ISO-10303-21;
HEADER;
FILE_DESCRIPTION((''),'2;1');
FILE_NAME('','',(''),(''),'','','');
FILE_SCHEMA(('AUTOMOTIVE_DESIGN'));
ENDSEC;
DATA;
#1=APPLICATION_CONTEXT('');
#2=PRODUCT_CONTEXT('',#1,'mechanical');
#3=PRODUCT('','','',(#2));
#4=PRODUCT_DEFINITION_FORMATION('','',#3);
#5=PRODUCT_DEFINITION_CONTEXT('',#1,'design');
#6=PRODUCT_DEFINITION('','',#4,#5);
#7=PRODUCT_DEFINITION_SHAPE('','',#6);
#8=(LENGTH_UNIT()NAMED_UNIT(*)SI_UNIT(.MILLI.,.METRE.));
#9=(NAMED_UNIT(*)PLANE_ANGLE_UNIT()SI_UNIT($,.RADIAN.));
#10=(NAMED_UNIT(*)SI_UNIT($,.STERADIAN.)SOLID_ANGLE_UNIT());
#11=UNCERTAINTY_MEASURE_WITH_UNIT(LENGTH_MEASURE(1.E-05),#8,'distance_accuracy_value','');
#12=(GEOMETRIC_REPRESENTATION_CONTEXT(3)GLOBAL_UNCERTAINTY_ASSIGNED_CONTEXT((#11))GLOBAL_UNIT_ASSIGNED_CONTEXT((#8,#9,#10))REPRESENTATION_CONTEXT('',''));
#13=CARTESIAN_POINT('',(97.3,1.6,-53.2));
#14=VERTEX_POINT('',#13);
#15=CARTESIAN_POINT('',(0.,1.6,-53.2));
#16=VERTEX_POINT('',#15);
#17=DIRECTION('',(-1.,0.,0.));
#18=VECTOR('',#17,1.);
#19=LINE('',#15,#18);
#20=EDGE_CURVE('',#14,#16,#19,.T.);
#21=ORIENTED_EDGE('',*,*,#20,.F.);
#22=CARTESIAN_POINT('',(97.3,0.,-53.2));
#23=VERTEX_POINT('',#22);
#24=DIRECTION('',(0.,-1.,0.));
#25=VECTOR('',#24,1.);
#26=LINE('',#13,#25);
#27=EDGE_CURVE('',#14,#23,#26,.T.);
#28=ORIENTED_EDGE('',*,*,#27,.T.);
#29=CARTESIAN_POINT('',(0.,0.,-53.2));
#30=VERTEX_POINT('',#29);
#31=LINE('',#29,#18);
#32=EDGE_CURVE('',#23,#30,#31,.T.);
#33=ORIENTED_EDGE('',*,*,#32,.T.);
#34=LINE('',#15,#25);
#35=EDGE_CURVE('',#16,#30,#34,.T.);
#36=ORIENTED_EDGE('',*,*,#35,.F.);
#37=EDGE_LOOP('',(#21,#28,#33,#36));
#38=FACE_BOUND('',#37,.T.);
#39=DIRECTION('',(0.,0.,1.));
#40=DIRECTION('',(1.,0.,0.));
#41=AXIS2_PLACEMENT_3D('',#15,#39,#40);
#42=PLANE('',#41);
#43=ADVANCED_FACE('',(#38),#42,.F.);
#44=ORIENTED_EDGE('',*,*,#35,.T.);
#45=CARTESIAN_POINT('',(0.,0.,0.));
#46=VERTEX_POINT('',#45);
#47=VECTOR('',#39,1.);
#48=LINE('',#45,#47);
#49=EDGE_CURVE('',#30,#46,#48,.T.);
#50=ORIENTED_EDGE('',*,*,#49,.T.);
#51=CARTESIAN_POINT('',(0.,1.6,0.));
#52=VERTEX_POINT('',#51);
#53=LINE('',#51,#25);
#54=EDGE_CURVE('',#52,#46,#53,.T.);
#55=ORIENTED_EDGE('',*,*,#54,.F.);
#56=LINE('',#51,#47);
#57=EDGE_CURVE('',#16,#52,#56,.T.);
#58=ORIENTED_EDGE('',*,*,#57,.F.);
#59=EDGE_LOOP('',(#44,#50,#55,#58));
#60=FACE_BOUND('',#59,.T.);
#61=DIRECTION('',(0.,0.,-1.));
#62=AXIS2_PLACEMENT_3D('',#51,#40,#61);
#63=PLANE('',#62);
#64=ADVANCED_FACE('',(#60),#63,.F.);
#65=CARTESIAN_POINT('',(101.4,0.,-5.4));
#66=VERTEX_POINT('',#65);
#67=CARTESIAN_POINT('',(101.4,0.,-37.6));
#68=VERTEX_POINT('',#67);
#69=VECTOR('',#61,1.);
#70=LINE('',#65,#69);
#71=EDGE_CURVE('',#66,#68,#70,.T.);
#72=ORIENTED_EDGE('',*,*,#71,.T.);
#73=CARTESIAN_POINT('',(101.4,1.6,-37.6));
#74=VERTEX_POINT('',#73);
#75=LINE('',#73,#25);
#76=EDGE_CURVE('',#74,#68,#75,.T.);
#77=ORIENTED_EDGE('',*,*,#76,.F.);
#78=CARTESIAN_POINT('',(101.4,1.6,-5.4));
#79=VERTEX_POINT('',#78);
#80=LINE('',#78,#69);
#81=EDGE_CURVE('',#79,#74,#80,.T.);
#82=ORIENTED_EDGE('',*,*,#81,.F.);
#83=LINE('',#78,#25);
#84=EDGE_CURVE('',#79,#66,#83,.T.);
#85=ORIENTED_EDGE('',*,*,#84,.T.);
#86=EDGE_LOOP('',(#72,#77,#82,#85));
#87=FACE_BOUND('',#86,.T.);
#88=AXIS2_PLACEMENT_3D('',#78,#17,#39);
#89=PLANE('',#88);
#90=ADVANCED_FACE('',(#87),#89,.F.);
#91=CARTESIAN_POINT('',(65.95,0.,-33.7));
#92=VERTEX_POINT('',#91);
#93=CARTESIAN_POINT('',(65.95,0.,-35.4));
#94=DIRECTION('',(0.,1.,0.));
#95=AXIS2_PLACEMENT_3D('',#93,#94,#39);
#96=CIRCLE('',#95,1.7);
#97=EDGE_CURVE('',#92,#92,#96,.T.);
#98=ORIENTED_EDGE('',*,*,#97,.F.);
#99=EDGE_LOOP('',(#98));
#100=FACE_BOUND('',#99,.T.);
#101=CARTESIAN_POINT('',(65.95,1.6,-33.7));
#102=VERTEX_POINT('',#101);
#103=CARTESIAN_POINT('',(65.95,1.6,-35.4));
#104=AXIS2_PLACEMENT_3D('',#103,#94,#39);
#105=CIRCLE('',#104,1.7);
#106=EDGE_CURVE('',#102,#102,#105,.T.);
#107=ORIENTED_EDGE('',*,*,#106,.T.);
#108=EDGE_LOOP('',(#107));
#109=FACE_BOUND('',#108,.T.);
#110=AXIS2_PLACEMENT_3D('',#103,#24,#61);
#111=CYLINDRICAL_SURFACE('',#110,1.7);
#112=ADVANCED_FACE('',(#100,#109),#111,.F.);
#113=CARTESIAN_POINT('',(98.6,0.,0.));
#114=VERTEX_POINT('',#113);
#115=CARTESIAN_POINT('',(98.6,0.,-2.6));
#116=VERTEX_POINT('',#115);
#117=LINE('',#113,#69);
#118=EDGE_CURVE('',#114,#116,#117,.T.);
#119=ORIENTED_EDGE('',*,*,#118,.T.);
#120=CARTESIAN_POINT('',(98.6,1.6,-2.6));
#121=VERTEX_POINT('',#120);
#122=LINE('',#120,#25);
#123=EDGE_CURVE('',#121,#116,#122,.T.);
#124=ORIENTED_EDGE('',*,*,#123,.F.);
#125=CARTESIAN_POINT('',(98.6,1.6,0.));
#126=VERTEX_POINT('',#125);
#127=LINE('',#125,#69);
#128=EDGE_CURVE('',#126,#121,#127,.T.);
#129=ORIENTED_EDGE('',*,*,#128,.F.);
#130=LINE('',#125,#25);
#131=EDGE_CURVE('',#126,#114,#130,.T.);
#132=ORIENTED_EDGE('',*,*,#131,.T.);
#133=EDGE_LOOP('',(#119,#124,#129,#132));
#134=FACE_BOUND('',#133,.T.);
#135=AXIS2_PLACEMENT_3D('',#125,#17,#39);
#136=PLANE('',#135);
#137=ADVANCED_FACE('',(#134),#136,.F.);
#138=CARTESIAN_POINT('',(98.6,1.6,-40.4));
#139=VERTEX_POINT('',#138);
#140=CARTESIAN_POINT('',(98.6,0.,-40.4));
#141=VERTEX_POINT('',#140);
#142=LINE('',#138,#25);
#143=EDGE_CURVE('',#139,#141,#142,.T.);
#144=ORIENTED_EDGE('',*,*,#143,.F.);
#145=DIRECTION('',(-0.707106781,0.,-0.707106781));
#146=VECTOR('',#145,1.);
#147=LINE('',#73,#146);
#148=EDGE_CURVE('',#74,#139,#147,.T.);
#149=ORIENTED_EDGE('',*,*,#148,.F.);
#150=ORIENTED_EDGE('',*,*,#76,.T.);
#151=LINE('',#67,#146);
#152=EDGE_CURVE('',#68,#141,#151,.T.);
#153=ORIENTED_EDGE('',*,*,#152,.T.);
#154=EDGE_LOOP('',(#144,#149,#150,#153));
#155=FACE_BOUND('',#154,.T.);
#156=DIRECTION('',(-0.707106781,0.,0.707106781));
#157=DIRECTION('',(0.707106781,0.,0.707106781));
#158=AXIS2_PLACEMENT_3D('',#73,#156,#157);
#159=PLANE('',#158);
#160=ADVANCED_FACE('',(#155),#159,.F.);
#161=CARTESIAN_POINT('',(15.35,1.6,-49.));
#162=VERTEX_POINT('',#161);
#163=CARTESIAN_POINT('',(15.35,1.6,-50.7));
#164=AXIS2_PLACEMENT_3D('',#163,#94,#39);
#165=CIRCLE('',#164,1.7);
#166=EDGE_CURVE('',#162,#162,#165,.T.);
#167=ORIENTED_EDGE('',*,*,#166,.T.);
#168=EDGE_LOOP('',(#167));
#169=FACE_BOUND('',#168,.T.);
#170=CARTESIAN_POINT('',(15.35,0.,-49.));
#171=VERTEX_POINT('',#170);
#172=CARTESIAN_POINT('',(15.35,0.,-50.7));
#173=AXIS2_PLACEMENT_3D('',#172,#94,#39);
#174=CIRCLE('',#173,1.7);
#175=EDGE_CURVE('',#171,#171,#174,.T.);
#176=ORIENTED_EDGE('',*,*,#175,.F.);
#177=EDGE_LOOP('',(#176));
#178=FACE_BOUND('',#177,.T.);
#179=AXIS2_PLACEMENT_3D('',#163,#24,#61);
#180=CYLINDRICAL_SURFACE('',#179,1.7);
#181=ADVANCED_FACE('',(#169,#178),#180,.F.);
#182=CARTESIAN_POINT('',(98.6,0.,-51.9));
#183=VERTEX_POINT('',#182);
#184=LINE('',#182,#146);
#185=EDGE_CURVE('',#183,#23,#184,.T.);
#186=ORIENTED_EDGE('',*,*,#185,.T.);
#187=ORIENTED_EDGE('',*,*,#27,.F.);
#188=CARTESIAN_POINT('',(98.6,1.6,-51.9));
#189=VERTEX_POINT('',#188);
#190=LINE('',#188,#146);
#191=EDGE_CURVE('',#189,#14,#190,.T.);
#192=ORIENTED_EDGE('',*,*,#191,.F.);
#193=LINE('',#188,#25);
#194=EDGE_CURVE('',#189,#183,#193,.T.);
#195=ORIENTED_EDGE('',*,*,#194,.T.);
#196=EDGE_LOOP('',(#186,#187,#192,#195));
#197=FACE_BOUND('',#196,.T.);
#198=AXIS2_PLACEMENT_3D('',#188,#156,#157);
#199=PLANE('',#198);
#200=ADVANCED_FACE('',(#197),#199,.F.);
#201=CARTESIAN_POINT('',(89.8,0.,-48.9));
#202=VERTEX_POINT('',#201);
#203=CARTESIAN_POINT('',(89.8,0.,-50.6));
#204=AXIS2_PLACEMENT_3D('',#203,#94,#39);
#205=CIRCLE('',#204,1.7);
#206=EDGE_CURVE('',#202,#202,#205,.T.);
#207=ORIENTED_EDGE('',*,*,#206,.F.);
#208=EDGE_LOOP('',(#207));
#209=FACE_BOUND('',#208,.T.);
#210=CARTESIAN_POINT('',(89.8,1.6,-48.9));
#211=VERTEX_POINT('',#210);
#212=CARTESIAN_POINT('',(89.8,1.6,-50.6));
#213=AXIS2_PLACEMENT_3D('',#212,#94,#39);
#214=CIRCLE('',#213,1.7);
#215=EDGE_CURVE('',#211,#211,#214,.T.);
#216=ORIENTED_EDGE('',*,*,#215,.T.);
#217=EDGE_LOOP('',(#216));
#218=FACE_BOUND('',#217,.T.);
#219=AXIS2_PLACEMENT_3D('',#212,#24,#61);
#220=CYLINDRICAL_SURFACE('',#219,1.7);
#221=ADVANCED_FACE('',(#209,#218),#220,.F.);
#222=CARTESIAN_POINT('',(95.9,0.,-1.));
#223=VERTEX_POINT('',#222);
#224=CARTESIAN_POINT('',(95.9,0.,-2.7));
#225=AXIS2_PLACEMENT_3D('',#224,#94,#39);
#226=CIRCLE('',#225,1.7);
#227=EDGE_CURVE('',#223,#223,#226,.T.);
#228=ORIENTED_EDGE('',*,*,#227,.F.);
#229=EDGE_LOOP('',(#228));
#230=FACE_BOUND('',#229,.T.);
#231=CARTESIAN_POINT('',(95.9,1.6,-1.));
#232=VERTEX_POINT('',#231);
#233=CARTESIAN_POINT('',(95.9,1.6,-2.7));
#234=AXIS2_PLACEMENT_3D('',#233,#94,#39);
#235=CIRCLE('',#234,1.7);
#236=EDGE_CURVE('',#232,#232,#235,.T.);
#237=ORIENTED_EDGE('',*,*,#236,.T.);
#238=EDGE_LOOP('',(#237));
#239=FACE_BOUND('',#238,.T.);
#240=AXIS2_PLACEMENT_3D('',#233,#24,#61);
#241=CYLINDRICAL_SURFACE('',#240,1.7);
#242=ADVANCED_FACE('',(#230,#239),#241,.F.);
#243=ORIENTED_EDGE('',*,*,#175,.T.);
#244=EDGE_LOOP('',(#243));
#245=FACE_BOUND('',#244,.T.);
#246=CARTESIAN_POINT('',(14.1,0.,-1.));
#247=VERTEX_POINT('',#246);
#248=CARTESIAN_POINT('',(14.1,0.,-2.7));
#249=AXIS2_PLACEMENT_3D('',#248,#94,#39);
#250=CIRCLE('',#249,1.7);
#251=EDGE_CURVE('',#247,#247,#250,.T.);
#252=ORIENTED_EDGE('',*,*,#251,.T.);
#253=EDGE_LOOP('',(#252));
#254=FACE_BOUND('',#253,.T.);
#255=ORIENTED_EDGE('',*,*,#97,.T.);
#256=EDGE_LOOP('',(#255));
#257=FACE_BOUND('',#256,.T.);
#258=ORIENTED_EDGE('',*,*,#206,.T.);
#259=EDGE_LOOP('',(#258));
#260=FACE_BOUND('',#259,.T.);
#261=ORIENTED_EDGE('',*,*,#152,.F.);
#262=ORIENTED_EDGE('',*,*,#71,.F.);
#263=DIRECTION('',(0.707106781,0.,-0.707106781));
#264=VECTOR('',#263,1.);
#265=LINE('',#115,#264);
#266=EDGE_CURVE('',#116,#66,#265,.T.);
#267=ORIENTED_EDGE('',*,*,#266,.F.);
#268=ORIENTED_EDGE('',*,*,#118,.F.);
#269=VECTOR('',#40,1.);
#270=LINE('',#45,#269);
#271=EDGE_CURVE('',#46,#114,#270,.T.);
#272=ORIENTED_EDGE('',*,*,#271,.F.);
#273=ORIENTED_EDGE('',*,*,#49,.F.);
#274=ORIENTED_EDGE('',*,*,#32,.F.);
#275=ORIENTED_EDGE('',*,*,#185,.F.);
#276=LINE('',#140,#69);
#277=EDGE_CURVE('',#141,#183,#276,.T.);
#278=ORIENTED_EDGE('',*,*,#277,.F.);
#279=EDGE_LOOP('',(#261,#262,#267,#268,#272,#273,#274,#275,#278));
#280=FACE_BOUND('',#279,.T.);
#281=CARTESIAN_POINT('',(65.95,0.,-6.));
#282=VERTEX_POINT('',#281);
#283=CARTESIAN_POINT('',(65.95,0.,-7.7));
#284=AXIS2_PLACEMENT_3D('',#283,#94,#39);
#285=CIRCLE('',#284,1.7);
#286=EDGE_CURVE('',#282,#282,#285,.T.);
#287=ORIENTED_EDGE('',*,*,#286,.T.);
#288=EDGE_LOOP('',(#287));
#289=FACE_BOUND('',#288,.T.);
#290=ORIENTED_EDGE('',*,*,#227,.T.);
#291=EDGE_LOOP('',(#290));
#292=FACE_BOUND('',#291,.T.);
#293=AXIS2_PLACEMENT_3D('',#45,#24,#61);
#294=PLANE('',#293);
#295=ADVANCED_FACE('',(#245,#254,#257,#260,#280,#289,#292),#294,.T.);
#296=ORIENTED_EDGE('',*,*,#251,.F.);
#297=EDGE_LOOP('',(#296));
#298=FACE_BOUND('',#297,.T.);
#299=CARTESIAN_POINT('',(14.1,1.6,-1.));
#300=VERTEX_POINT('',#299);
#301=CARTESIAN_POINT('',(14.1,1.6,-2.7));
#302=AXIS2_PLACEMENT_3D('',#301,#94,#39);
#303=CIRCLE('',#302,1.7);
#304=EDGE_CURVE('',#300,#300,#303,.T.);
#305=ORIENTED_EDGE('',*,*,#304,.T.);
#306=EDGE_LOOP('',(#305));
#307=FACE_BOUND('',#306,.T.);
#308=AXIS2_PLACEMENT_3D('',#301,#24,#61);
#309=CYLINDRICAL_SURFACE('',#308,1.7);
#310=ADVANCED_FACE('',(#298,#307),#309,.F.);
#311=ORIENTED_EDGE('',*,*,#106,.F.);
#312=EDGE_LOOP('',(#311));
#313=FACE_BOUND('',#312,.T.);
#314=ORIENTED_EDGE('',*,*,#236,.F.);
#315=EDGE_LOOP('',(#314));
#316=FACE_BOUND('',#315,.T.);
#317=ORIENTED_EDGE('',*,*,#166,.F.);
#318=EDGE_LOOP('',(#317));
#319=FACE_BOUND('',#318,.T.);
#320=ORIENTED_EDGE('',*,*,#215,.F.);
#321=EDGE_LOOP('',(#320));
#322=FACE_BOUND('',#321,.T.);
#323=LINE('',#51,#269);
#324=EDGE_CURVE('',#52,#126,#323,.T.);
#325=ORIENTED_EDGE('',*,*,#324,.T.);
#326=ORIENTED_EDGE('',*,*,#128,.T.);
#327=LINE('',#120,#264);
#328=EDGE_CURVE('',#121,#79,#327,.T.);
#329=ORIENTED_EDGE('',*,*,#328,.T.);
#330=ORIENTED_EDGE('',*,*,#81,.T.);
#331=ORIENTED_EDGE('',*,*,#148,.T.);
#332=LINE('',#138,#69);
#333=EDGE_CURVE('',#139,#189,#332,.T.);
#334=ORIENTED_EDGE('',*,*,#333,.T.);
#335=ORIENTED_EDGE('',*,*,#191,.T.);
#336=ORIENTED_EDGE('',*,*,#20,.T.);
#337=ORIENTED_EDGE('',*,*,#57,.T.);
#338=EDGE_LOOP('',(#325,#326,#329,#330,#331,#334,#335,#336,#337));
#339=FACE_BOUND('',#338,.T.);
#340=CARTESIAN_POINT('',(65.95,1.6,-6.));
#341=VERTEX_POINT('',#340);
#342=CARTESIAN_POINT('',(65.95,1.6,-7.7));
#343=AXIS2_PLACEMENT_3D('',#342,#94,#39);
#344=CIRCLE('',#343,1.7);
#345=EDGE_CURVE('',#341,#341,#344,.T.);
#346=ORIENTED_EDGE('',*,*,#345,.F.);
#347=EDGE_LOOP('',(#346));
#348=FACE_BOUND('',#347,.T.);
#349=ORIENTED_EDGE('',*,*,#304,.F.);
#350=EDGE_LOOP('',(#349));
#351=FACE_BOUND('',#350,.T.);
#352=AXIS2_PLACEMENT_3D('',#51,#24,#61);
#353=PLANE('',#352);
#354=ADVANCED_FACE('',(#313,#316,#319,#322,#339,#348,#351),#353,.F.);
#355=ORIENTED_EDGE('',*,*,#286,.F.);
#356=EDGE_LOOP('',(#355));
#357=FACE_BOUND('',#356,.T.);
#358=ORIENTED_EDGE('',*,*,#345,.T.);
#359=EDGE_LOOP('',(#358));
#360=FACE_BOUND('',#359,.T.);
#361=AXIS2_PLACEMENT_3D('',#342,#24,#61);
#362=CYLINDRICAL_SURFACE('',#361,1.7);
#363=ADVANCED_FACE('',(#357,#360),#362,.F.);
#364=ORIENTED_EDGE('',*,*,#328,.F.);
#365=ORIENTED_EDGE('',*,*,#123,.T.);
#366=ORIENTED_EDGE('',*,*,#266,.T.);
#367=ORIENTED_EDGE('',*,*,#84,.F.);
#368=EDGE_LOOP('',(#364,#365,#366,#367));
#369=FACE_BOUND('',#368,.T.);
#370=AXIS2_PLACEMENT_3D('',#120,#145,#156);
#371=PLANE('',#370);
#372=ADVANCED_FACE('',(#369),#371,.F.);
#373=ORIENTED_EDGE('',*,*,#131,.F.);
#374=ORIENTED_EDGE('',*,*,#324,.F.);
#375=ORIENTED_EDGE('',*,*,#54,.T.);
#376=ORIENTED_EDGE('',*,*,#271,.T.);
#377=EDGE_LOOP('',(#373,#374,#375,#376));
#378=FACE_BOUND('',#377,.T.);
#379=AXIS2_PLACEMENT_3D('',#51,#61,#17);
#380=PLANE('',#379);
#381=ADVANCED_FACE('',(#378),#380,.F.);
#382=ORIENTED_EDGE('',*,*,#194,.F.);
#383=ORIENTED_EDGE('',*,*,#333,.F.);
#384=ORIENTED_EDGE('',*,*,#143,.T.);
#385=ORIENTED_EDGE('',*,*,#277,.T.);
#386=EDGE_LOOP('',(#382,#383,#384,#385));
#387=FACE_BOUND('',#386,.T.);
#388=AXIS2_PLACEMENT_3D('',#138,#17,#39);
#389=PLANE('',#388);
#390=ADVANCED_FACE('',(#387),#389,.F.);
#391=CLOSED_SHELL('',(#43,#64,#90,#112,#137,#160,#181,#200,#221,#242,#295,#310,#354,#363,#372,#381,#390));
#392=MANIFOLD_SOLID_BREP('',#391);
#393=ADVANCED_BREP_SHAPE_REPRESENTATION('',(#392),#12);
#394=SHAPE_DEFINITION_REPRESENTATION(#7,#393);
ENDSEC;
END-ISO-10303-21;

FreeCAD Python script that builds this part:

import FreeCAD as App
import Part
import Sketcher
Q = App.Units.Quantity


def add_polygon(sketch, points):
    """Adds a closed chain of lines whose ends are joined by coincident constraints."""
    first, n = sketch.GeometryCount, len(points)
    for a, b in zip(points, points[1:] + points[:1]):
        sketch.addGeometry(Part.LineSegment(App.Vector(*a, 0), App.Vector(*b, 0)), False)
    for i in range(n):
        sketch.addConstraint(Sketcher.Constraint("Coincident", first + i, 2, first + (i + 1) % n, 1))

doc = App.newDocument("Part")
params = doc.addObject("Spreadsheet::Sheet", "Params")
for row, (alias, value) in enumerate([
    ("sketch1_diameter", "3.4 mm"),
    ("sketch1_width", "97.3 mm"),
    ("sketch1_width2", "98.6 mm"),
    ("sketch1_height", "2.6 mm"),
    ("sketch1_height2", "32.2 mm"),
    ("pad1_length", "1.6 mm"),
], start=1):
    params.set(f"A{row}", alias)
    params.set(f"B{row}", "=" + value)
    params.setAlias(f"B{row}", alias)

body = doc.addObject("PartDesign::Body", "Body")

sketch1 = body.newObject("Sketcher::SketchObject", "Sketch")
sketch1.AttachmentSupport = (doc.getObject("XZ_Plane"), [""])
sketch1.MapMode = "FlatFace"
add_polygon(sketch1, [(98.6, 0), (98.6, -2.6), (101.4, -5.4), (101.4, -37.6), (98.6, -40.4), (98.6, -51.9), (97.3, -53.2), (0, -53.2), (0, 0)])
sketch1.addGeometry(Part.Circle(App.Vector(14.1, -2.7, 0), App.Vector(0, 0, 1), 1.7), False)
sketch1.addGeometry(Part.Circle(App.Vector(65.95, -7.7, 0), App.Vector(0, 0, 1), 1.7), False)
sketch1.addGeometry(Part.Circle(App.Vector(95.9, -2.7, 0), App.Vector(0, 0, 1), 1.7), False)
sketch1.addGeometry(Part.Circle(App.Vector(15.35, -50.7, 0), App.Vector(0, 0, 1), 1.7), False)
sketch1.addGeometry(Part.Circle(App.Vector(65.95, -35.4, 0), App.Vector(0, 0, 1), 1.7), False)
sketch1.addGeometry(Part.Circle(App.Vector(89.8, -50.6, 0), App.Vector(0, 0, 1), 1.7), False)
sketch1.addConstraint(Sketcher.Constraint("Vertical", 0))
sketch1.addConstraint(Sketcher.Constraint("Vertical", 2))
sketch1.addConstraint(Sketcher.Constraint("Vertical", 4))
sketch1.addConstraint(Sketcher.Constraint("Horizontal", 6))
sketch1.addConstraint(Sketcher.Constraint("Vertical", 7))
sketch1.addConstraint(Sketcher.Constraint("Horizontal", 8))
sketch1.addConstraint(Sketcher.Constraint("Coincident", 7, 2, -1, 1))
sketch1.addConstraint(Sketcher.Constraint("Equal", 9, 10))
sketch1.addConstraint(Sketcher.Constraint("Equal", 10, 11))
sketch1.addConstraint(Sketcher.Constraint("Equal", 11, 12))
sketch1.addConstraint(Sketcher.Constraint("Equal", 12, 13))
sketch1.addConstraint(Sketcher.Constraint("Equal", 13, 14))
sketch1.addConstraint(Sketcher.Constraint("Perpendicular", 1, 3))
sketch1.addConstraint(Sketcher.Constraint("Parallel", 3, 5))
sketch1.addConstraint(Sketcher.Constraint("Horizontal", 9, 3, 11, 3))
sketch1.addConstraint(Sketcher.Constraint("Vertical", 10, 3, 13, 3))
sketch1.addConstraint(Sketcher.Constraint("Vertical", 0, 2, 3, 2))
sketch1.addConstraint(Sketcher.Constraint("Equal", 1, 3))
sketch1.addConstraint(Sketcher.Constraint("Diameter", 9, Q("3.4 mm")))
sketch1.addConstraint(Sketcher.Constraint("DistanceX", 6, 2, 6, 1, Q("97.3 mm")))
sketch1.addConstraint(Sketcher.Constraint("DistanceX", 8, 1, 8, 2, Q("98.6 mm")))
sketch1.addConstraint(Sketcher.Constraint("DistanceY", 0, 2, 0, 1, Q("2.6 mm")))
sketch1.addConstraint(Sketcher.Constraint("DistanceY", 2, 2, 2, 1, Q("32.2 mm")))
sketch1.addConstraint(Sketcher.Constraint("DistanceY", 4, 2, 4, 1, Q("11.5 mm")))
sketch1.addConstraint(Sketcher.Constraint("DistanceY", 7, 1, 7, 2, Q("53.2 mm")))
sketch1.addConstraint(Sketcher.Constraint("DistanceY", 10, 3, 9, 3, Q("5 mm")))
sketch1.addConstraint(Sketcher.Constraint("DistanceY", 12, 3, 9, 3, Q("48 mm")))
sketch1.addConstraint(Sketcher.Constraint("DistanceY", 14, 3, 0, 2, Q("48 mm")))
sketch1.addConstraint(Sketcher.Constraint("DistanceY", 13, 3, 1, 2, Q("30 mm")))
sketch1.addConstraint(Sketcher.Constraint("DistanceX", -1, 1, 9, 3, Q("14.1 mm")))
sketch1.addConstraint(Sketcher.Constraint("DistanceY", 9, 3, -1, 1, Q("2.7 mm")))
sketch1.addConstraint(Sketcher.Constraint("DistanceX", -1, 1, 11, 3, Q("95.9 mm")))
sketch1.addConstraint(Sketcher.Constraint("DistanceX", -1, 1, 14, 3, Q("89.8 mm")))
sketch1.addConstraint(Sketcher.Constraint("DistanceX", 12, 3, 10, 3, Q("50.6 mm")))
sketch1.addConstraint(Sketcher.Constraint("DistanceX", -1, 1, 10, 3, Q("65.95 mm")))
sketch1.setExpression("Constraints[27]", "Params.sketch1_diameter")
sketch1.setExpression("Constraints[28]", "Params.sketch1_width")
sketch1.setExpression("Constraints[29]", "Params.sketch1_width2")
sketch1.setExpression("Constraints[30]", "Params.sketch1_height")
sketch1.setExpression("Constraints[31]", "Params.sketch1_height2")
pad1 = body.newObject("PartDesign::Pad", "Pad")
pad1.Profile = sketch1
pad1.setExpression("Length", "Params.pad1_length")
pad1.Reversed = True

doc.recompute()
